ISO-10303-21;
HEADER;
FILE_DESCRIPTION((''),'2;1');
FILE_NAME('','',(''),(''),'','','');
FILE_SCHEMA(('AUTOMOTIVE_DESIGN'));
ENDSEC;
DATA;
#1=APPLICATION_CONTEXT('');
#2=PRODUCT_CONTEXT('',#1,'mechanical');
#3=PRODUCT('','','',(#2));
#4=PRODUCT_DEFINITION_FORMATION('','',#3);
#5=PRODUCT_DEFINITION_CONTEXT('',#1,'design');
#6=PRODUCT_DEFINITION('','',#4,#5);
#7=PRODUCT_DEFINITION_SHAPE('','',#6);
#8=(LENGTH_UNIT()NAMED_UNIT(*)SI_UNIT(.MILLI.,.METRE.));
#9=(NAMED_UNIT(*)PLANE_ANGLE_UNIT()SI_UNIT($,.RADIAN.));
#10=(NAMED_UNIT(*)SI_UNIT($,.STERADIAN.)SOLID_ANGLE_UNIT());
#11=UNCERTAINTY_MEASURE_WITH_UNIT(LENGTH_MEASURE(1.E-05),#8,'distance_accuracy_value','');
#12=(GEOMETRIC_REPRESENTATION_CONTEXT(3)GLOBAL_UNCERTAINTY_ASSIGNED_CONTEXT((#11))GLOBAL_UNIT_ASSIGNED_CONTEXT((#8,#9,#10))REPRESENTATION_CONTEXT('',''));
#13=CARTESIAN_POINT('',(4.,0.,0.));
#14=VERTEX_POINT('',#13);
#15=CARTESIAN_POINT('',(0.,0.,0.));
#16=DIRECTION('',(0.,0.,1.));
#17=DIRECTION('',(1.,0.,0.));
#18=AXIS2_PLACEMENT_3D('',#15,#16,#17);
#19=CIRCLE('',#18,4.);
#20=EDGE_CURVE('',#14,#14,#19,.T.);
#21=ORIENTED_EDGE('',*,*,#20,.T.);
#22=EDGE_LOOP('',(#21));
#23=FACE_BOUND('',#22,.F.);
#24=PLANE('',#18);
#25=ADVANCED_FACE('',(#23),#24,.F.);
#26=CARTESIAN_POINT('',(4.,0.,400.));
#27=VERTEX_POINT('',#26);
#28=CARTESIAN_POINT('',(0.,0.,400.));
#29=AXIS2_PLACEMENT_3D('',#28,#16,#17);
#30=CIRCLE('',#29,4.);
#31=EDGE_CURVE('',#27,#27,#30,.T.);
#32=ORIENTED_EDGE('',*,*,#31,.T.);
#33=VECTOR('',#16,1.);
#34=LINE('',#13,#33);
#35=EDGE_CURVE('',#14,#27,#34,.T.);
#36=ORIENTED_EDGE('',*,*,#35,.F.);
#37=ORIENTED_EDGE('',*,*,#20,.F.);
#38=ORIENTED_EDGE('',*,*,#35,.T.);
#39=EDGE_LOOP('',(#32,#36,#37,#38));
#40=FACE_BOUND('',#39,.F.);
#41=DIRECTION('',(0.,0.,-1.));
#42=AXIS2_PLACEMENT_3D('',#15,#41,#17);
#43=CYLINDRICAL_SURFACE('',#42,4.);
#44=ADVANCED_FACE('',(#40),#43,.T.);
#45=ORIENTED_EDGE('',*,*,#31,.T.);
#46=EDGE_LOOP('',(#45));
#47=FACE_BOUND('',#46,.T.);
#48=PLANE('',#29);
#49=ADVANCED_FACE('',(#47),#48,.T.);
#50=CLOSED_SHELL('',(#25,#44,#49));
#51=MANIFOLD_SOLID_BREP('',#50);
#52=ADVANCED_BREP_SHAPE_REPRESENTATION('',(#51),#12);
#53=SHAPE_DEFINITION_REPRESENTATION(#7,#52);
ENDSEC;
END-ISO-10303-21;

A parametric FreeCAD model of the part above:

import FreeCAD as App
import Part
import Sketcher
from FreeCAD import Vector
Q = App.Units.Quantity

doc = App.newDocument("Part")
body = doc.addObject("PartDesign::Body", "Body")

# Sketch on XY plane
sketch1 = body.newObject("Sketcher::SketchObject", "Sketch")
sketch1.AttachmentSupport = (doc.getObject("XY_Plane"), [""])
sketch1.MapMode = "FlatFace"
sketch1.addGeometry(Part.Circle(Vector(0, 0, 0), Vector(0, 0, 1), 4), False)
sketch1.addConstraint(Sketcher.Constraint("Coincident", 0, 3, -1, 1))
sketch1.addConstraint(Sketcher.Constraint("Diameter", 0, Q("8 mm")))
pad1 = body.newObject("PartDesign::Pad", "Pad")
pad1.Profile = sketch1
pad1.Length = 400

doc.recompute()
